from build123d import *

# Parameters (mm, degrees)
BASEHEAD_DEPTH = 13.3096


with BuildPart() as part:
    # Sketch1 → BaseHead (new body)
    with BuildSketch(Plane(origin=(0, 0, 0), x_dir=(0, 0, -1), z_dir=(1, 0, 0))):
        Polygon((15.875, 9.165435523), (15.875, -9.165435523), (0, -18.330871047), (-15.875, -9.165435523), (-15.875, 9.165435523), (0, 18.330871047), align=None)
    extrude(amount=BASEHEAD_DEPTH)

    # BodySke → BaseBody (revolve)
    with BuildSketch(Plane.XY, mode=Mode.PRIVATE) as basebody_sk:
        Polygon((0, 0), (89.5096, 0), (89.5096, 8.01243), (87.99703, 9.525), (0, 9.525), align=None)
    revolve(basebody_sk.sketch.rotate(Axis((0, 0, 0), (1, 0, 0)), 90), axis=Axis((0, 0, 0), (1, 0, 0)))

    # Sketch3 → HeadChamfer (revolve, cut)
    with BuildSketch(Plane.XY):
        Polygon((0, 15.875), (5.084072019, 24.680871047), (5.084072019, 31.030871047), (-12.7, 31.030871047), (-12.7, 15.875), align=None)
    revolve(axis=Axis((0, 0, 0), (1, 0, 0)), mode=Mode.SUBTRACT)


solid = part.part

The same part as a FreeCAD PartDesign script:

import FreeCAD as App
import Part
import Sketcher

V = App.Vector
Q = App.Units.Quantity

doc = App.newDocument("Part")
body = doc.addObject("PartDesign::Body", "Body")

sketch1 = body.newObject("Sketcher::SketchObject", "Sketch")
sketch1.AttachmentSupport = (doc.getObject("YZ_Plane"), [""])
sketch1.MapMode = "FlatFace"
sketch1.addGeometry([
    Part.LineSegment(V(-9.165436, -15.875, 0), V(9.165436, -15.875, 0)),
    Part.LineSegment(V(9.165436, -15.875, 0), V(18.330871, 0, 0)),
    Part.LineSegment(V(18.330871, 0, 0), V(9.165436, 15.875, 0)),
    Part.LineSegment(V(9.165436, 15.875, 0), V(-9.165436, 15.875, 0)),
    Part.LineSegment(V(-9.165436, 15.875, 0), V(-18.330871, 0, 0)),
    Part.LineSegment(V(-18.330871, 0, 0), V(-9.165436, -15.875, 0)),
], False)
sketch1.addConstraint([
    Sketcher.Constraint("Coincident", 0, 2, 1, 1),
    Sketcher.Constraint("Coincident", 1, 2, 2, 1),
    Sketcher.Constraint("Coincident", 2, 2, 3, 1),
    Sketcher.Constraint("Coincident", 3, 2, 4, 1),
    Sketcher.Constraint("Coincident", 4, 2, 5, 1),
    Sketcher.Constraint("Coincident", 5, 2, 0, 1),
    Sketcher.Constraint("Horizontal", 0),
    Sketcher.Constraint("Horizontal", 3),
    Sketcher.Constraint("Symmetric", 0, 2, 3, 2, -1, 1),
    Sketcher.Constraint("Symmetric", 1, 2, 4, 2, -1, 1),
    Sketcher.Constraint("PointOnObject", 1, 2, -1),
    Sketcher.Constraint("Parallel", 2, 5),
    Sketcher.Constraint("Vertical", 0, 2, 2, 2),
    Sketcher.Constraint("Angle", 1, Q("60 deg")),
    Sketcher.Constraint("DistanceY", 0, 2, 2, 2, Q("1.25 in")),
    Sketcher.Constraint("DistanceX", 0, 1, 0, 2, 18.330871),
])
pad1 = body.newObject("PartDesign::Pad", "Pad")
pad1.Profile = sketch1
pad1.Length = Q("0.524 in")

sketch2 = body.newObject("Sketcher::SketchObject", "Sketch001")
sketch2.AttachmentSupport = (doc.getObject("XY_Plane"), [""])
sketch2.MapMode = "FlatFace"
sketch2.addGeometry([
    Part.LineSegment(V(0, 0, 0), V(89.5096, 0, 0)),
    Part.LineSegment(V(89.5096, 0, 0), V(89.5096, 8.01243, 0)),
    Part.LineSegment(V(89.5096, 8.01243, 0), V(87.99703, 9.525, 0)),
    Part.LineSegment(V(87.99703, 9.525, 0), V(0, 9.525, 0)),
    Part.LineSegment(V(0, 9.525, 0), V(0, 0, 0)),
], False)
sketch2.addConstraint([
    Sketcher.Constraint("Coincident", 0, 2, 1, 1),
    Sketcher.Constraint("Coincident", 1, 2, 2, 1),
    Sketcher.Constraint("Coincident", 2, 2, 3, 1),
    Sketcher.Constraint("Coincident", 3, 2, 4, 1),
    Sketcher.Constraint("Coincident", 4, 2, 0, 1),
    Sketcher.Constraint("Horizontal", 0),
    Sketcher.Constraint("Vertical", 1),
    Sketcher.Constraint("Horizontal", 3),
    Sketcher.Constraint("Vertical", 4),
    Sketcher.Constraint("Coincident", 4, 2, -1, 1),
    Sketcher.Constraint("Angle", 2, Q("135 deg")),
    Sketcher.Constraint("DistanceX", 0, 1, 0, 2, Q("3.524 in")),
    Sketcher.Constraint("DistanceY", 4, 2, 4, 1, Q("0.375 in")),
    Sketcher.Constraint("DistanceX", 3, 2, 3, 1, 87.99703),
])
revolution = body.newObject("PartDesign::Revolution", "Revolution")
revolution.Profile = sketch2
revolution.ReferenceAxis = (sketch2, ["H_Axis"])
revolution.Angle = 360

sketch3 = body.newObject("Sketcher::SketchObject", "Sketch002")
sketch3.AttachmentSupport = (doc.getObject("XY_Plane"), [""])
sketch3.MapMode = "FlatFace"
sketch3.addGeometry([
    Part.LineSegment(V(0, 15.875, 0), V(5.084072, 24.680871, 0)),
    Part.LineSegment(V(5.084072, 24.680871, 0), V(5.084072, 31.030871, 0)),
    Part.LineSegment(V(5.084072, 31.030871, 0), V(-12.7, 31.030871, 0)),
    Part.LineSegment(V(-12.7, 31.030871, 0), V(-12.7, 15.875, 0)),
    Part.LineSegment(V(-12.7, 15.875, 0), V(0, 15.875, 0)),
], False)
sketch3.addConstraint([
    Sketcher.Constraint("Coincident", 0, 2, 1, 1),
    Sketcher.Constraint("Coincident", 1, 2, 2, 1),
    Sketcher.Constraint("Coincident", 2, 2, 3, 1),
    Sketcher.Constraint("Coincident", 3, 2, 4, 1),
    Sketcher.Constraint("Coincident", 4, 2, 0, 1),
    Sketcher.Constraint("Vertical", 1),
    Sketcher.Constraint("Horizontal", 2),
    Sketcher.Constraint("Vertical", 3),
    Sketcher.Constraint("Horizontal", 4),
    Sketcher.Constraint("PointOnObject", 4, 2, -2),
    Sketcher.Constraint("DistanceX", 4, 1, 4, 2, Q("0.5 in")),
    Sketcher.Constraint("Angle", 0, Q("60 deg")),
    Sketcher.Constraint("DistanceY", 1, 1, 1, 2, Q("0.25 in")),
    Sketcher.Constraint("DistanceY", -1, 1, 3, 2, Q("0.625 in")),
    Sketcher.Constraint("DistanceY", 3, 2, 3, 1, 15.155871),
])
groove = body.newObject("PartDesign::Groove", "Groove")
groove.Profile = sketch3
groove.ReferenceAxis = (sketch3, ["H_Axis"])
groove.Angle = 360

doc.recompute()
